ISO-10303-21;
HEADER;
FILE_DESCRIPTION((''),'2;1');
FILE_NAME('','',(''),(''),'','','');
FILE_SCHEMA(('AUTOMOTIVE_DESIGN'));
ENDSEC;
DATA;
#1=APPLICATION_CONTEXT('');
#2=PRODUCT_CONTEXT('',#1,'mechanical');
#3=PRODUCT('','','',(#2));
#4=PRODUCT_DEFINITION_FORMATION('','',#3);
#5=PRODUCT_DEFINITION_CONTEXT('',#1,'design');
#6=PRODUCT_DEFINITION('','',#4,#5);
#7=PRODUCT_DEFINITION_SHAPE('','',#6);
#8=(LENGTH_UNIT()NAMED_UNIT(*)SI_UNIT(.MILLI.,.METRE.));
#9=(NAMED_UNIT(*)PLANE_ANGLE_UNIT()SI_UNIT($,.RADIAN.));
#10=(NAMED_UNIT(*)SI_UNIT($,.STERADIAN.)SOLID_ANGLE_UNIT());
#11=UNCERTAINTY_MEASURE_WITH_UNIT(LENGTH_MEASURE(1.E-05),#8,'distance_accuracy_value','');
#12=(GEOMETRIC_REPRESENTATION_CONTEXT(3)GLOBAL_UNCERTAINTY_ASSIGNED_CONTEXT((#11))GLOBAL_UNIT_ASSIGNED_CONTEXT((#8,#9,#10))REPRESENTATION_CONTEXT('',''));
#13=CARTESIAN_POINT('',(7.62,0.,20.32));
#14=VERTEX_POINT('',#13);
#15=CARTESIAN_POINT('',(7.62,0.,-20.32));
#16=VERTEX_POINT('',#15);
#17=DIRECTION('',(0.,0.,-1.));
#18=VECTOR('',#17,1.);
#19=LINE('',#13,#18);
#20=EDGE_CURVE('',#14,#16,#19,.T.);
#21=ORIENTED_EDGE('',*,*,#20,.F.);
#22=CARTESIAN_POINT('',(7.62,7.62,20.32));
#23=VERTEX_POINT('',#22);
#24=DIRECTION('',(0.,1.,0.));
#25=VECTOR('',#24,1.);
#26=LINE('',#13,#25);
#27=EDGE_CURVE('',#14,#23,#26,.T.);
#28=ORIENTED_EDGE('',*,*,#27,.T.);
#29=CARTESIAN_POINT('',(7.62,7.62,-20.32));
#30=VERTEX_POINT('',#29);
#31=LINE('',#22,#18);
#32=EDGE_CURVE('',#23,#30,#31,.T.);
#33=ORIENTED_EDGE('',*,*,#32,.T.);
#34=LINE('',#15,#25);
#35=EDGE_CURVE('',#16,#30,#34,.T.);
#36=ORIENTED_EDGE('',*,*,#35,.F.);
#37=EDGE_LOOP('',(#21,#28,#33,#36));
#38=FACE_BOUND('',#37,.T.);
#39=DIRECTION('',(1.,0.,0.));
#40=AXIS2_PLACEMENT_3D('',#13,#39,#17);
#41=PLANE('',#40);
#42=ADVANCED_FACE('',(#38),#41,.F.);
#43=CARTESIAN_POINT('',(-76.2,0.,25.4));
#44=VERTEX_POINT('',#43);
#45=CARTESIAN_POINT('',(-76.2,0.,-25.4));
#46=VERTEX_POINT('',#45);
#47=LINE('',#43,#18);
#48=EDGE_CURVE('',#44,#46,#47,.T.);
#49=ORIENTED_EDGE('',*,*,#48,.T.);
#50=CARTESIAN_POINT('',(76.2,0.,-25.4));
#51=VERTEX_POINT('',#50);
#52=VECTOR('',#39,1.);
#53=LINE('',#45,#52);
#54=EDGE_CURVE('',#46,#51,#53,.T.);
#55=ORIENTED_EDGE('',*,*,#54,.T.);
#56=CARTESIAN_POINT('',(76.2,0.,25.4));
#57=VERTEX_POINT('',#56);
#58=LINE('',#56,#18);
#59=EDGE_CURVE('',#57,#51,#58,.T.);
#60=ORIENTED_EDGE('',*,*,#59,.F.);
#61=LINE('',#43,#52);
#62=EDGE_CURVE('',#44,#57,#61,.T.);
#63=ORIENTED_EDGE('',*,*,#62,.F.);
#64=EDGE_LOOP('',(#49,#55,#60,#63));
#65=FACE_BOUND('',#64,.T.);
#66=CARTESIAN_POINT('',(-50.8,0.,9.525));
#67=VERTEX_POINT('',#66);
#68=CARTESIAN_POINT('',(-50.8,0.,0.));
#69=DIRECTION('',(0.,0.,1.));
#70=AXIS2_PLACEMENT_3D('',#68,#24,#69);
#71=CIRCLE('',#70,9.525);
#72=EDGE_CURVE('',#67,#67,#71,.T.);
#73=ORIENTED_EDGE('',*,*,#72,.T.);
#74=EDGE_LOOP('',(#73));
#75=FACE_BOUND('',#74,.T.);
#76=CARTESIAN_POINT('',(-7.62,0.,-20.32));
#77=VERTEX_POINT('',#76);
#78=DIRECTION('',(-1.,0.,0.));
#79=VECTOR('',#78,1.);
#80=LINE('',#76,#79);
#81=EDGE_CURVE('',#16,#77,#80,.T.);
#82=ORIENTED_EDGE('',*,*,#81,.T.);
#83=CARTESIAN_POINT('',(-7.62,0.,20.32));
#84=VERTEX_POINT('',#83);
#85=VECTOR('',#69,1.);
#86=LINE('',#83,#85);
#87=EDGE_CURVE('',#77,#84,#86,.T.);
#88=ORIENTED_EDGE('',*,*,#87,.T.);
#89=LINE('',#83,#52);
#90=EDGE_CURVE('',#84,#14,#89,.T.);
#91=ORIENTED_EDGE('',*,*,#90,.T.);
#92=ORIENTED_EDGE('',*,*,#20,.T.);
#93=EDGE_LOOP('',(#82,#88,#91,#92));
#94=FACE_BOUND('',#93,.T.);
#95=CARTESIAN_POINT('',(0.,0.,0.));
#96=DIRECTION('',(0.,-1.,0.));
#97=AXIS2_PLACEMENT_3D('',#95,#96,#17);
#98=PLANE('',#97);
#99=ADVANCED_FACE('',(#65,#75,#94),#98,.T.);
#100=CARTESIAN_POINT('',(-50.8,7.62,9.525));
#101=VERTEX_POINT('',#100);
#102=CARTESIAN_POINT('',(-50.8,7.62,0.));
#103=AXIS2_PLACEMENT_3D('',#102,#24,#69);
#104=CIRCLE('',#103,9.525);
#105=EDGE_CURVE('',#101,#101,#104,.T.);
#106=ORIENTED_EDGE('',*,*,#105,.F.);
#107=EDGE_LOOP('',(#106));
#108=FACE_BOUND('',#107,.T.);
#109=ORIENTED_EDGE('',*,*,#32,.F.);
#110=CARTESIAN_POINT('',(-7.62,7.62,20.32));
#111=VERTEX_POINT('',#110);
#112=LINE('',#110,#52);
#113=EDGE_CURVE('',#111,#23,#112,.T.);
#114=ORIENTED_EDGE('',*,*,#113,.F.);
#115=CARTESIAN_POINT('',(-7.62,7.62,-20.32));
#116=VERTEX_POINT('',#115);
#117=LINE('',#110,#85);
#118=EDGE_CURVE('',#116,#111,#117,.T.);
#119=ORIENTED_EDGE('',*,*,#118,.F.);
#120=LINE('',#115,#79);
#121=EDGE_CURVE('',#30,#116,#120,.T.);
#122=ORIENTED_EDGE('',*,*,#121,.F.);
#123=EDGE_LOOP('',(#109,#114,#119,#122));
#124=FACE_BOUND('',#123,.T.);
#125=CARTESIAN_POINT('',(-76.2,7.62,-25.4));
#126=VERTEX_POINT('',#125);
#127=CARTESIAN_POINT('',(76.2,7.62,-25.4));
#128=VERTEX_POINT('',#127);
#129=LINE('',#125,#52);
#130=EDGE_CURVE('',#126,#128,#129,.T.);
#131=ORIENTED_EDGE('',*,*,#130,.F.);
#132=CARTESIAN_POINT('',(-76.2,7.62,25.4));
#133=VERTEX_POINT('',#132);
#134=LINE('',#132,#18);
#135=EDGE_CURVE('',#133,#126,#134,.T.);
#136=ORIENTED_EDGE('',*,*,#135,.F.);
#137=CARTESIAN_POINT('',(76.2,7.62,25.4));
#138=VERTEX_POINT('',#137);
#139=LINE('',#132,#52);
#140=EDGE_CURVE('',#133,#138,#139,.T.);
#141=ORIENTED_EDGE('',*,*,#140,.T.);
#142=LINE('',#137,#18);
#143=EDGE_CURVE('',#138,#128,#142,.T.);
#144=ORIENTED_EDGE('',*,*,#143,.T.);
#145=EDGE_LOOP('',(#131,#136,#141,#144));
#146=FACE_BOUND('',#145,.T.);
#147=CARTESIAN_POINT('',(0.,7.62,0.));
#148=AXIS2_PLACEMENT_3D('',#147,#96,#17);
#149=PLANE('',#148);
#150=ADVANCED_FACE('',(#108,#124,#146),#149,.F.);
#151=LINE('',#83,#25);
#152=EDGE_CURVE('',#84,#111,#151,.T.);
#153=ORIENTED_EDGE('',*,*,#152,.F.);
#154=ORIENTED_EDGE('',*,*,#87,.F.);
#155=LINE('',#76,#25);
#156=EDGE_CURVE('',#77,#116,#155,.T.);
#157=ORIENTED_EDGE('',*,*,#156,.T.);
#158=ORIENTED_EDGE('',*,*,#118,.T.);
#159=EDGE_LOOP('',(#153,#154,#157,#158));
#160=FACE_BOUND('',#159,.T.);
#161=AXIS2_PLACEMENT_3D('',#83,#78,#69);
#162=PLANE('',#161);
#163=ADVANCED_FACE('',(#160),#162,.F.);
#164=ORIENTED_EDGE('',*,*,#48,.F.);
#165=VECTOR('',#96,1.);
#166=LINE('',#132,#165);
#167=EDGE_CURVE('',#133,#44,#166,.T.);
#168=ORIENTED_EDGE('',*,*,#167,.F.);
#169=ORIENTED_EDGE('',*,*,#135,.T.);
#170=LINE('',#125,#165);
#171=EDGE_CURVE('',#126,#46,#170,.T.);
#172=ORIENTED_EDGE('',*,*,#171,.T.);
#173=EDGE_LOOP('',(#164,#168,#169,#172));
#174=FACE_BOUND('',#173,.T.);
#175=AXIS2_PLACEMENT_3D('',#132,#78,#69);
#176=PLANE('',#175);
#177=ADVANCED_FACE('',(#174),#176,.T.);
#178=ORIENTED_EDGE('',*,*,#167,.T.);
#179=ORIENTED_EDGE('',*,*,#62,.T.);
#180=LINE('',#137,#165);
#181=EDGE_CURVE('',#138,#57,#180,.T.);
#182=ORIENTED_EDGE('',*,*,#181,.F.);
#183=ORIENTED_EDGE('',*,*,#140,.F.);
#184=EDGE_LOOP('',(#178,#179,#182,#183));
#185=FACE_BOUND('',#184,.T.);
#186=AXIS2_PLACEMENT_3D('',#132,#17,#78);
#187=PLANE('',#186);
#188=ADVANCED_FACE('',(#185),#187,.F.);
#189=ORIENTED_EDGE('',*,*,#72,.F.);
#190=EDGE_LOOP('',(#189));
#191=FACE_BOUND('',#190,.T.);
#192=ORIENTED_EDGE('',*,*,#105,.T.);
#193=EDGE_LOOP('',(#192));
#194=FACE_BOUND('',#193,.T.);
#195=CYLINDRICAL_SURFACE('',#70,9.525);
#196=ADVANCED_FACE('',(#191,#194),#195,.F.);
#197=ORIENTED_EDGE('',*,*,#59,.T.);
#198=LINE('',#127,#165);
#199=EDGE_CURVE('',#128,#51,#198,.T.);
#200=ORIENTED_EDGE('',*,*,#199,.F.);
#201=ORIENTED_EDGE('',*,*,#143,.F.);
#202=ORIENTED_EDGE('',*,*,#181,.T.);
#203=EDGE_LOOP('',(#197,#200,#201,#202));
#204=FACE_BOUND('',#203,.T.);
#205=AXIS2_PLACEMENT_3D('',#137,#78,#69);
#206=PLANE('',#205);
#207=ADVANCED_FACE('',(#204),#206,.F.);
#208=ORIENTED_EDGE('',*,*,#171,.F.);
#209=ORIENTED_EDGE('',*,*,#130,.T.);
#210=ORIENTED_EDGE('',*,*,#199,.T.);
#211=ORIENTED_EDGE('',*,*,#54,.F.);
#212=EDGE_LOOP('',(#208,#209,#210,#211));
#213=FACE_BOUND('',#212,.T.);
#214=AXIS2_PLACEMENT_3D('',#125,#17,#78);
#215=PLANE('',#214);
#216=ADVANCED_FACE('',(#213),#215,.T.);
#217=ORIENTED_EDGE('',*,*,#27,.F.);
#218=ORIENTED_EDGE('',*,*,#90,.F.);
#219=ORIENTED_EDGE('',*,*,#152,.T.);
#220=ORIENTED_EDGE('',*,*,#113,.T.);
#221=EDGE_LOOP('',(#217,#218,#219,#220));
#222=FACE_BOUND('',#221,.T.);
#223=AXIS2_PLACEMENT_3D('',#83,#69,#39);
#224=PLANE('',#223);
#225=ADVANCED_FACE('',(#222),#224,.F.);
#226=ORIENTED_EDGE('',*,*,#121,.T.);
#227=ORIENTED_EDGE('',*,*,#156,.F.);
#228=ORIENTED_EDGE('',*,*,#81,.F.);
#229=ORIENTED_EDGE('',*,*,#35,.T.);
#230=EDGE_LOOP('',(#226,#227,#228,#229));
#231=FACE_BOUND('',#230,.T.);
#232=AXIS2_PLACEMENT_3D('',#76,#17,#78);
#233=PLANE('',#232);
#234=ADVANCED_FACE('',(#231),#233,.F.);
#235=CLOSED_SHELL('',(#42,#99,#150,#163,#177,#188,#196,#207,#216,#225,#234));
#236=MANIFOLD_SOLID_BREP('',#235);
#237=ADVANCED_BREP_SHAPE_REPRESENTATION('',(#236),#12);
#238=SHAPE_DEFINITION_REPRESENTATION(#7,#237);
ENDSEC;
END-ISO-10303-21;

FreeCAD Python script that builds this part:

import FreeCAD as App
import Part
import Sketcher
Q = App.Units.Quantity


def add_polygon(sketch, points):
    """Adds a closed chain of lines whose ends are joined by coincident constraints."""
    first, n = sketch.GeometryCount, len(points)
    for a, b in zip(points, points[1:] + points[:1]):
        sketch.addGeometry(Part.LineSegment(App.Vector(*a, 0), App.Vector(*b, 0)), False)
    for i in range(n):
        sketch.addConstraint(Sketcher.Constraint("Coincident", first + i, 2, first + (i + 1) % n, 1))

doc = App.newDocument("Part")
params = doc.addObject("Spreadsheet::Sheet", "Params")
for row, (alias, value) in enumerate([
    ("sketch1_width", "6 in"),
    ("sketch1_height", "2 in"),
    ("pad1_length", "0.3 in"),
    ("sketch2_diameter", "0.75 in"),
    ("sketch3_width", "0.6 in"),
    ("sketch3_height", "1.6 in"),
], start=1):
    params.set(f"A{row}", alias)
    params.set(f"B{row}", "=" + value)
    params.setAlias(f"B{row}", alias)

body = doc.addObject("PartDesign::Body", "Body")

# Sketch on XZ plane
sketch1 = body.newObject("Sketcher::SketchObject", "Sketch")
sketch1.AttachmentSupport = (doc.getObject("XZ_Plane"), [""])
sketch1.MapMode = "FlatFace"
add_polygon(sketch1, [(-76, -25), (-76, 25), (76, 25), (76, -25)])  # lines 0-3
sketch1.addConstraint(Sketcher.Constraint("Vertical", 0))
sketch1.addConstraint(Sketcher.Constraint("Horizontal", 1))
sketch1.addConstraint(Sketcher.Constraint("Vertical", 2))
sketch1.addConstraint(Sketcher.Constraint("Horizontal", 3))
sketch1.addConstraint(Sketcher.Constraint("Symmetric", 0, 2, 2, 2, -1, 1))
sketch1.addConstraint(Sketcher.Constraint("DistanceX", 1, 1, 1, 2, Q("6 in")))
sketch1.addConstraint(Sketcher.Constraint("DistanceY", 0, 1, 0, 2, Q("2 in")))
sketch1.setExpression("Constraints[9]", "Params.sketch1_width")
sketch1.setExpression("Constraints[10]", "Params.sketch1_height")
pad1 = body.newObject("PartDesign::Pad", "Pad")
pad1.Profile = sketch1
pad1.setExpression("Length", "Params.pad1_length")
pad1.Reversed = True

# Sketch on XZ plane
sketch2 = body.newObject("Sketcher::SketchObject", "Sketch001")
sketch2.AttachmentSupport = (doc.getObject("XZ_Plane"), [""])
sketch2.MapMode = "FlatFace"
sketch2.AttachmentOffset = App.Placement(App.Vector(0, 0, -0.3 * 25.4), App.Rotation())
sketch2.addGeometry(Part.Circle(App.Vector(-51, 0, 0), App.Vector(0, 0, 1), 10), False)
sketch2.addConstraint(Sketcher.Constraint("PointOnObject", 0, 3, -1))
sketch2.addConstraint(Sketcher.Constraint("Diameter", 0, Q("0.75 in")))
sketch2.addConstraint(Sketcher.Constraint("DistanceX", 0, 3, -1, 1, Q("2 in")))
sketch2.setExpression("Constraints[1]", "Params.sketch2_diameter")
pocket1 = body.newObject("PartDesign::Pocket", "Pocket")
pocket1.Profile = sketch2
pocket1.Type = "ThroughAll"
pocket1.Reversed = True

# Sketch on XZ plane
sketch3 = body.newObject("Sketcher::SketchObject", "Sketch002")
sketch3.AttachmentSupport = (doc.getObject("XZ_Plane"), [""])
sketch3.MapMode = "FlatFace"
sketch3.AttachmentOffset = App.Placement(App.Vector(0, 0, -0.3 * 25.4), App.Rotation())
add_polygon(sketch3, [(-8, -20), (-8, 20), (8, 20), (8, -20)])  # lines 0-3
sketch3.addConstraint(Sketcher.Constraint("Vertical", 0))
sketch3.addConstraint(Sketcher.Constraint("Horizontal", 1))
sketch3.addConstraint(Sketcher.Constraint("Vertical", 2))
sketch3.addConstraint(Sketcher.Constraint("Horizontal", 3))
sketch3.addConstraint(Sketcher.Constraint("Symmetric", 0, 2, 2, 2, -1, 1))
sketch3.addConstraint(Sketcher.Constraint("DistanceX", 1, 1, 1, 2, Q("0.6 in")))
sketch3.addConstraint(Sketcher.Constraint("DistanceY", 0, 1, 0, 2, Q("1.6 in")))
sketch3.setExpression("Constraints[9]", "Params.sketch3_width")
sketch3.setExpression("Constraints[10]", "Params.sketch3_height")
pocket2 = body.newObject("PartDesign::Pocket", "Pocket001")
pocket2.Profile = sketch3
pocket2.Type = "ThroughAll"
pocket2.Reversed = True

doc.recompute()
